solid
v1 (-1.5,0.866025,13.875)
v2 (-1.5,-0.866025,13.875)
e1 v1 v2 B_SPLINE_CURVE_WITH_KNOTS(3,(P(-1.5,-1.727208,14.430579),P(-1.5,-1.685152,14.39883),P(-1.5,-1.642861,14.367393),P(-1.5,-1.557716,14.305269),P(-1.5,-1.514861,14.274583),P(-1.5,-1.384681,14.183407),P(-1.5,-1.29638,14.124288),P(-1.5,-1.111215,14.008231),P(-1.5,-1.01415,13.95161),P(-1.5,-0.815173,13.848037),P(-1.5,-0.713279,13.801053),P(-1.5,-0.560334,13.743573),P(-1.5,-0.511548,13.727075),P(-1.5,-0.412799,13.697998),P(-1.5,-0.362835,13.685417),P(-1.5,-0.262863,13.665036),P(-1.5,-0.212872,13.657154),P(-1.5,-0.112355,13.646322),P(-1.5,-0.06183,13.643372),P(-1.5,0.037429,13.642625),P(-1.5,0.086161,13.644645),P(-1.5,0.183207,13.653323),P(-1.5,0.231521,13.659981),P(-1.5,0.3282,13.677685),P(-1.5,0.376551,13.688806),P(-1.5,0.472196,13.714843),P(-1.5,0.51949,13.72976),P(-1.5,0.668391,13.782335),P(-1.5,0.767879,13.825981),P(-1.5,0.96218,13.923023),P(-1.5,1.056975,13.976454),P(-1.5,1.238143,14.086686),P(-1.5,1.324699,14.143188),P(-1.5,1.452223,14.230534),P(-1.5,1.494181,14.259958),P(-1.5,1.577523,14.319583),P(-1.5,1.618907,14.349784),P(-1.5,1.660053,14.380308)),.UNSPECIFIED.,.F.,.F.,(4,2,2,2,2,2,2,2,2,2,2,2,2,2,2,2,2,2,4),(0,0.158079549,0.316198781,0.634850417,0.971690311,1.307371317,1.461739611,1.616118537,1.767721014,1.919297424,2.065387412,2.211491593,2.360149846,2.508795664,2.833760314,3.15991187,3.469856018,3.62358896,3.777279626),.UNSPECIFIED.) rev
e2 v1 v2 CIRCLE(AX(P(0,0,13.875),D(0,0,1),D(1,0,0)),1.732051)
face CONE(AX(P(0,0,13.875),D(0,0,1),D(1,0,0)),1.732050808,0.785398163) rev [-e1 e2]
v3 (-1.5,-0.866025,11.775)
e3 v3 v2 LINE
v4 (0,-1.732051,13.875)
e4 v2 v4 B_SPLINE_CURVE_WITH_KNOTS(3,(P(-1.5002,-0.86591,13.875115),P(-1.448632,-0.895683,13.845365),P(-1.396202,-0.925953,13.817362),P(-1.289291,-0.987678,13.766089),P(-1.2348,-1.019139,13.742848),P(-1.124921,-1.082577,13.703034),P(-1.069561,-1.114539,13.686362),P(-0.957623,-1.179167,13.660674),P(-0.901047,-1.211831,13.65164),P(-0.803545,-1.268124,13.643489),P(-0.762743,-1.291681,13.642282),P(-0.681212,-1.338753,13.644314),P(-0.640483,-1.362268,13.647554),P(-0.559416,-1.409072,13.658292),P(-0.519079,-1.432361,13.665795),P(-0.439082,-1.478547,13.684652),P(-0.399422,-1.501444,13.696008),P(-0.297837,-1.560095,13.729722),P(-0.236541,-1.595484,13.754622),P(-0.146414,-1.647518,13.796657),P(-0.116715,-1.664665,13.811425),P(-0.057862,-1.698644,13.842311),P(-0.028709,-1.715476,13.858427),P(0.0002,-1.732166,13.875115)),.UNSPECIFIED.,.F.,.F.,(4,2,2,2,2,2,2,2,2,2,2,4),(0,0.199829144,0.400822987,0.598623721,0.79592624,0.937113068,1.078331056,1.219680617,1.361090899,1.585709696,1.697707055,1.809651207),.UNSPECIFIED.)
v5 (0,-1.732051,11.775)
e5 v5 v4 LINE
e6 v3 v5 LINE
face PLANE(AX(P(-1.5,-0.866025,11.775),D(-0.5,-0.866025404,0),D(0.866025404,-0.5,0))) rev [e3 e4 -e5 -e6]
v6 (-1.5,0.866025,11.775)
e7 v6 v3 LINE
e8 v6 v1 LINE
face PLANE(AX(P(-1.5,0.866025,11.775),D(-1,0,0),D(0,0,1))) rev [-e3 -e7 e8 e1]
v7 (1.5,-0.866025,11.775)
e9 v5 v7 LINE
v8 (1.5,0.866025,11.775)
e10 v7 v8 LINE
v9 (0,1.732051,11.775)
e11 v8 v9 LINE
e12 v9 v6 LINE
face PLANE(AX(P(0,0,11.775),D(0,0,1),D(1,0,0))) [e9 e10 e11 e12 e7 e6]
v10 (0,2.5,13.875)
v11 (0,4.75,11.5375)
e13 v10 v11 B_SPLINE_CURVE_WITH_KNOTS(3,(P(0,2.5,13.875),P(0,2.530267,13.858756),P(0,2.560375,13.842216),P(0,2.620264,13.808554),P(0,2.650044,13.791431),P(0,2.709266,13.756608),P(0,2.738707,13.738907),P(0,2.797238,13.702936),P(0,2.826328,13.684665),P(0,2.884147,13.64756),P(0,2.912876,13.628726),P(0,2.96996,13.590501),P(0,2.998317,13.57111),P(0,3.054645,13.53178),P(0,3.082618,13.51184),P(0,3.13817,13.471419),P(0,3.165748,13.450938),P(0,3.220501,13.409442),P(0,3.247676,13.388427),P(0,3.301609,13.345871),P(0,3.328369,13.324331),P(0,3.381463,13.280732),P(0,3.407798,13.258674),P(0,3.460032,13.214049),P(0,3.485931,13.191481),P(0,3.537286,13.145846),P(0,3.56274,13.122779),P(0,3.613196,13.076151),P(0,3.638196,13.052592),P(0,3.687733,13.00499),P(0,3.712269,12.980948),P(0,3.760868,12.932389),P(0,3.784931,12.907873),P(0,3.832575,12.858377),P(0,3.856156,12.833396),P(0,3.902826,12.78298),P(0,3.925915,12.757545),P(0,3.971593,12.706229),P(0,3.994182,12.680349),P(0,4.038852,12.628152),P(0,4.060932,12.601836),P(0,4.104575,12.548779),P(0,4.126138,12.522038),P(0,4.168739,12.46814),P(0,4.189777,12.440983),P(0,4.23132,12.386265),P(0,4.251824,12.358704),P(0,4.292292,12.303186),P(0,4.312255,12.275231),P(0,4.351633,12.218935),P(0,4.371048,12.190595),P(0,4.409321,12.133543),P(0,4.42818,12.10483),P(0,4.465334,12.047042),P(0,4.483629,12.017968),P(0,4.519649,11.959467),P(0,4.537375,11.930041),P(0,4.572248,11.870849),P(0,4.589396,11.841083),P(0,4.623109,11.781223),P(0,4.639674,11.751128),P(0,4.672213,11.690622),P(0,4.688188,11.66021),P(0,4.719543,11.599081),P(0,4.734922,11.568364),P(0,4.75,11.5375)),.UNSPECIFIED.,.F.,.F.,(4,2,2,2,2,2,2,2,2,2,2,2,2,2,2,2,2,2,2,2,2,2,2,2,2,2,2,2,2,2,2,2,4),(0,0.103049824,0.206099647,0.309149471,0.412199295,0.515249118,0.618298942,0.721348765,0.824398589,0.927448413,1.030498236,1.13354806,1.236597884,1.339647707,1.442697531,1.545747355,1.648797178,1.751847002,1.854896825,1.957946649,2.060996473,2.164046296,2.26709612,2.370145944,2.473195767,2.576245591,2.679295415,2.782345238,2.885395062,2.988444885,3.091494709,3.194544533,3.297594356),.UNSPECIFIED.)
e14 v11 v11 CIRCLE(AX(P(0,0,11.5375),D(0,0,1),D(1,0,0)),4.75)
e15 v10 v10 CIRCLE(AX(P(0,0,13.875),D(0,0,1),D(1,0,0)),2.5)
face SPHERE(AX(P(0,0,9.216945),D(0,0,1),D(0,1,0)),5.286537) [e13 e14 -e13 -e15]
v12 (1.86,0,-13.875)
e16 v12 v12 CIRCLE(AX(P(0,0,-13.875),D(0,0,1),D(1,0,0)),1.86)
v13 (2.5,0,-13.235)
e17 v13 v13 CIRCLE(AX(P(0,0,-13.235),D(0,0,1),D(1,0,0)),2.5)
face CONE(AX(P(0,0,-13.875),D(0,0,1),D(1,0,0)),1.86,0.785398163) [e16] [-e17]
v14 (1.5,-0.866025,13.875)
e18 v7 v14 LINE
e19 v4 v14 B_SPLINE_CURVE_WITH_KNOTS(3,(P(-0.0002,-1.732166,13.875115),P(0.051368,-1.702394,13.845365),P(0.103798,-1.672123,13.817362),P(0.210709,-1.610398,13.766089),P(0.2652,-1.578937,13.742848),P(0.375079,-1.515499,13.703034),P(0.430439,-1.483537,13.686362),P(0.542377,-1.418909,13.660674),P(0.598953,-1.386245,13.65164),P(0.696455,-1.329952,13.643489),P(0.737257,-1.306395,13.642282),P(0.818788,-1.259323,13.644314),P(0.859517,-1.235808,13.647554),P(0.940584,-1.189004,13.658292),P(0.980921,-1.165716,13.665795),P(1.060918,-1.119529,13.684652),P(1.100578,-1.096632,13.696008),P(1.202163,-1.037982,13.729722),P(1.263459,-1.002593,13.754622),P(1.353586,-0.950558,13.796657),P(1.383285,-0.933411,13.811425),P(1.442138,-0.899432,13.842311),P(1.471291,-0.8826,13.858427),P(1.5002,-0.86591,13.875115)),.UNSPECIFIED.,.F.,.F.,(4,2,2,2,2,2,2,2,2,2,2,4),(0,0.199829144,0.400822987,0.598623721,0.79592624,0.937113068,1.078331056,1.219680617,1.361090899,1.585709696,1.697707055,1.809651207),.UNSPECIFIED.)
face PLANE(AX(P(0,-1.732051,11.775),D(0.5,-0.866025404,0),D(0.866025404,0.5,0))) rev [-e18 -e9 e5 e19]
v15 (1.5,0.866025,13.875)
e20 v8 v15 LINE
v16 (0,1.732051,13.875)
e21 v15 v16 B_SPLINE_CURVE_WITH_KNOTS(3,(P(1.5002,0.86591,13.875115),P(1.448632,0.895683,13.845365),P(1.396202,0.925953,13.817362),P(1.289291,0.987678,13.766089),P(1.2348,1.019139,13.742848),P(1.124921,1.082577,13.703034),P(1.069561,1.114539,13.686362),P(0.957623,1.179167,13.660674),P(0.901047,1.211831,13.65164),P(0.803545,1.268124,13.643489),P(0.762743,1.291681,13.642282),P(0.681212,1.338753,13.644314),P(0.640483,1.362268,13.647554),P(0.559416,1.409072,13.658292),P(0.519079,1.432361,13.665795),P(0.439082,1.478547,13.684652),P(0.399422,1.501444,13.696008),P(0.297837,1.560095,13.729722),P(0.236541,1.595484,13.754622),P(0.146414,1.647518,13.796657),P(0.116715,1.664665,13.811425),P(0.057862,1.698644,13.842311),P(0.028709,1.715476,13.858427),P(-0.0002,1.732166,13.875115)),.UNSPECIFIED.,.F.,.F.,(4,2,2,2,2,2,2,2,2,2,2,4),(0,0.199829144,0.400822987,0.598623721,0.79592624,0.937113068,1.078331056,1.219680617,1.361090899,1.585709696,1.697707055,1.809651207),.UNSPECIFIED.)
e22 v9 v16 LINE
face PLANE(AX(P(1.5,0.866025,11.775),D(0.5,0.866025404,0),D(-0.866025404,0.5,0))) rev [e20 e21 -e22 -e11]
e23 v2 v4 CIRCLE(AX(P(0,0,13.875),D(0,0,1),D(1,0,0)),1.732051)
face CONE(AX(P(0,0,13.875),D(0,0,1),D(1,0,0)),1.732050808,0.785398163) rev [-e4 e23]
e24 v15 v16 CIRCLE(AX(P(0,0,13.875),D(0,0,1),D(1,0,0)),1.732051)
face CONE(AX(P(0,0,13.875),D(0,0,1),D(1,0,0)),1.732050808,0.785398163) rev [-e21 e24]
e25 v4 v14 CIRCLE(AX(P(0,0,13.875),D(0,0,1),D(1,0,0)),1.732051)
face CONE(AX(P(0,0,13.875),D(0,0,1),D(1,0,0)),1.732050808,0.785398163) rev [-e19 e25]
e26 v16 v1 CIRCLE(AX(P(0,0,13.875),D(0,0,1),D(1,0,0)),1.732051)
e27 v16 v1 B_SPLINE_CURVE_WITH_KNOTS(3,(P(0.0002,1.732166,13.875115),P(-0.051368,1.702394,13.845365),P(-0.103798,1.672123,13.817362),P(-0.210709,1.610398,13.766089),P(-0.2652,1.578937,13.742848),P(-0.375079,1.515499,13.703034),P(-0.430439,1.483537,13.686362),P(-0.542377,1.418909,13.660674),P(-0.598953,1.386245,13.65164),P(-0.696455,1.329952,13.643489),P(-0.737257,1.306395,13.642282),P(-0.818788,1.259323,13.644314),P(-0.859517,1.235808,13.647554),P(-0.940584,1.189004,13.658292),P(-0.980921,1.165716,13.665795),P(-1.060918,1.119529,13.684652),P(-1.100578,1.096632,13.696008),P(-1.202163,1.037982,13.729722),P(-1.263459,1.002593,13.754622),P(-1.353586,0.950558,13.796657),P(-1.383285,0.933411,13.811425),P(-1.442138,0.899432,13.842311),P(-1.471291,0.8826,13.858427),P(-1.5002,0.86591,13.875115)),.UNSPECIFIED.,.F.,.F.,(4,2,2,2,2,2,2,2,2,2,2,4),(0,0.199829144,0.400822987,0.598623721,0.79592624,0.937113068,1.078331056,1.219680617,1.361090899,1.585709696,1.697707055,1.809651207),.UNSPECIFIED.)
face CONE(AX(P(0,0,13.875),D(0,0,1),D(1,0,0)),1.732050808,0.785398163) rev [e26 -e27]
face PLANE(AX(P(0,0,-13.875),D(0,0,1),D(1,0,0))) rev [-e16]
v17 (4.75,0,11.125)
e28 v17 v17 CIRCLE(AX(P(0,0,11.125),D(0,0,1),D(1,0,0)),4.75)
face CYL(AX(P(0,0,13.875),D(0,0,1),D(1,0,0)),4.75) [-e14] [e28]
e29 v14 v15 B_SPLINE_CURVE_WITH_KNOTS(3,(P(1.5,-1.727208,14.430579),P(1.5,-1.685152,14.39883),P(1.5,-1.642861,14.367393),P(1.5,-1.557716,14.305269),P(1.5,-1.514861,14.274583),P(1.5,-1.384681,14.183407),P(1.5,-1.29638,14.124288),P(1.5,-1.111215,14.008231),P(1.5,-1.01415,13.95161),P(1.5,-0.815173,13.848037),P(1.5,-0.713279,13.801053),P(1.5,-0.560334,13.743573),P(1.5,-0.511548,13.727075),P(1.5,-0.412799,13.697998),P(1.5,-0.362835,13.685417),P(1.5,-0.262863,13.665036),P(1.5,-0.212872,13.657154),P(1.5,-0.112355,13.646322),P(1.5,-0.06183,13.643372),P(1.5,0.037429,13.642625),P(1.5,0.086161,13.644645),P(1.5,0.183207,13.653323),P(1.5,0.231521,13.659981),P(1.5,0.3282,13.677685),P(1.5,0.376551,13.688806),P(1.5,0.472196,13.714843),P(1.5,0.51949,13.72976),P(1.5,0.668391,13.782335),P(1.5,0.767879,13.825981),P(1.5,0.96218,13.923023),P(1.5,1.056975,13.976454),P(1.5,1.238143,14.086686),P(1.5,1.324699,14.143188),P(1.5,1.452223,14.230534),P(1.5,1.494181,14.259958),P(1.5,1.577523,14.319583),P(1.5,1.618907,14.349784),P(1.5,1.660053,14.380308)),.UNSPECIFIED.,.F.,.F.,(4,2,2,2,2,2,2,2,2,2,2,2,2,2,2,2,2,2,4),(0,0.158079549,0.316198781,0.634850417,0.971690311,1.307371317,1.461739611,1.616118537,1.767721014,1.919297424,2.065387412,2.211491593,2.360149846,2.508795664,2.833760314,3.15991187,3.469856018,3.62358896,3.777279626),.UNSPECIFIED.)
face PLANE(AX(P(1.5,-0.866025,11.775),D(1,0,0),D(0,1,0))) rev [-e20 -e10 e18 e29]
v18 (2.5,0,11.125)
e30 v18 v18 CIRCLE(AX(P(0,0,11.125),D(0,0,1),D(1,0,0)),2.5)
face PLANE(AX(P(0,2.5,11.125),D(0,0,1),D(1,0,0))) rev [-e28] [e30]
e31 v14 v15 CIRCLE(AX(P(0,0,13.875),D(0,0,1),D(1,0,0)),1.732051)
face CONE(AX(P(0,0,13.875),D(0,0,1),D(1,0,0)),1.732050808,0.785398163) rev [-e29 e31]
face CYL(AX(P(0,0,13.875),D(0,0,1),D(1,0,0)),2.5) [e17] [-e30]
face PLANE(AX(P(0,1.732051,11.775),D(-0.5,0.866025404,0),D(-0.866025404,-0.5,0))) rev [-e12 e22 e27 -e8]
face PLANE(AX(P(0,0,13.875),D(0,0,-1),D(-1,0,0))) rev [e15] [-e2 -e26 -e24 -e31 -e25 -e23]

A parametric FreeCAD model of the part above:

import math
import FreeCAD as App
import Part
import Sketcher
Q = App.Units.Quantity

doc = App.newDocument("Part")
body = doc.addObject("PartDesign::Body", "Body")

# Sketch on YZ plane
sketch1 = doc.addObject("Sketcher::SketchObject", "Sketch")
body.addObject(sketch1)
sketch1.AttachmentSupport = (doc.YZ_Plane, [""])
sketch1.MapMode = "FlatFace"
sketch1.addGeometry([
    Part.LineSegment(App.Vector(0, 13.88, 0), App.Vector(0, -13.88, 0)),  # 0
    Part.LineSegment(App.Vector(0, -13.88, 0), App.Vector(1.86, -13.88, 0)),  # 1
    Part.LineSegment(App.Vector(1.86, -13.88, 0), App.Vector(2.5, -13.23, 0)),  # 2
    Part.LineSegment(App.Vector(2.5, -13.23, 0), App.Vector(2.5, 11.12, 0)),  # 3
    Part.LineSegment(App.Vector(2.5, 11.12, 0), App.Vector(4.75, 11.12, 0)),  # 4
    Part.LineSegment(App.Vector(4.75, 11.12, 0), App.Vector(4.75, 11.54, 0)),  # 5
    Part.ArcOfCircle(Part.Circle(App.Vector(0, 9.22, 0), App.Vector(0, 0, 1), 5.29), math.radians(26), math.radians(62)),  # 6
    Part.LineSegment(App.Vector(2.5, 13.88, 0), App.Vector(0, 13.88, 0)),  # 7
], False)
sketch1.addConstraint([
    Sketcher.Constraint("Coincident", 0, 2, 1, 1),
    Sketcher.Constraint("Coincident", 1, 2, 2, 1),
    Sketcher.Constraint("Coincident", 2, 2, 3, 1),
    Sketcher.Constraint("Coincident", 3, 2, 4, 1),
    Sketcher.Constraint("Coincident", 4, 2, 5, 1),
    Sketcher.Constraint("Coincident", 5, 2, 6, 1),
    Sketcher.Constraint("Coincident", 6, 2, 7, 1),
    Sketcher.Constraint("Coincident", 7, 2, 0, 1),
    Sketcher.Constraint("Vertical", 0),
    Sketcher.Constraint("Horizontal", 1),
    Sketcher.Constraint("Vertical", 3),
    Sketcher.Constraint("Horizontal", 4),
    Sketcher.Constraint("Vertical", 5),
    Sketcher.Constraint("Horizontal", 7),
    Sketcher.Constraint("Symmetric", 0, 2, 7, 2, -1, 1),
    Sketcher.Constraint("PointOnObject", 6, 3, -2),
    Sketcher.Constraint("Vertical", 3, 2, 6, 2),
    Sketcher.Constraint("Angle", 2, Q("45 deg")),
    Sketcher.Constraint("DistanceX", 7, 2, 7, 1, 2.5),
    Sketcher.Constraint("DistanceY", 1, 2, 3, 2, 25.0),
    Sketcher.Constraint("DistanceX", 1, 1, 1, 2, 1.86),
    Sketcher.Constraint("DistanceX", 4, 1, 4, 2, 2.25),
    Sketcher.Constraint("DistanceY", 0, 2, 0, 1, 27.75),
    Sketcher.Constraint("DistanceY", 5, 1, 5, 2, 0.4125),
])
revolution = doc.addObject("PartDesign::Revolution", "Revolution")
body.addObject(revolution)
revolution.Profile = sketch1
revolution.ReferenceAxis = (sketch1, ["V_Axis"])
revolution.Angle = 360

# Sketch on XY plane
sketch2 = doc.addObject("Sketcher::SketchObject", "Sketch001")
body.addObject(sketch2)
sketch2.AttachmentSupport = (doc.XY_Plane, [""])
sketch2.MapMode = "FlatFace"
sketch2.AttachmentOffset = App.Placement(App.Vector(0, 0, 13.875), App.Rotation())
sketch2.addGeometry([
    Part.LineSegment(App.Vector(0, 1.7, 0), App.Vector(-1.5, 0.9, 0)),  # 0
    Part.LineSegment(App.Vector(-1.5, 0.9, 0), App.Vector(-1.5, -0.9, 0)),  # 1
    Part.LineSegment(App.Vector(-1.5, -0.9, 0), App.Vector(0, -1.7, 0)),  # 2
    Part.LineSegment(App.Vector(0, -1.7, 0), App.Vector(1.5, -0.9, 0)),  # 3
    Part.LineSegment(App.Vector(1.5, -0.9, 0), App.Vector(1.5, 0.9, 0)),  # 4
    Part.LineSegment(App.Vector(1.5, 0.9, 0), App.Vector(0, 1.7, 0)),  # 5
], False)
sketch2.addConstraint([
    Sketcher.Constraint("Coincident", 0, 2, 1, 1),
    Sketcher.Constraint("Coincident", 1, 2, 2, 1),
    Sketcher.Constraint("Coincident", 2, 2, 3, 1),
    Sketcher.Constraint("Coincident", 3, 2, 4, 1),
    Sketcher.Constraint("Coincident", 4, 2, 5, 1),
    Sketcher.Constraint("Coincident", 5, 2, 0, 1),
    Sketcher.Constraint("Vertical", 1),
    Sketcher.Constraint("Vertical", 4),
    Sketcher.Constraint("Symmetric", 0, 2, 3, 2, -1, 1),
    Sketcher.Constraint("Symmetric", 2, 2, 5, 2, -1, 1),
    Sketcher.Constraint("PointOnObject", 2, 2, -2),
    Sketcher.Constraint("Parallel", 2, 5),
    Sketcher.Constraint("Horizontal", 1, 2, 3, 2),
    Sketcher.Constraint("Angle", 0, Q("-150 deg")),
    Sketcher.Constraint("DistanceX", 1, 2, 3, 2, 3.0),
    Sketcher.Constraint("DistanceY", 1, 2, 1, 1, 1.732051),
])
pocket1 = doc.addObject("PartDesign::Pocket", "Pocket")
body.addObject(pocket1)
pocket1.Profile = sketch2
pocket1.Length = 2.1

# Sketch on YZ plane
sketch3 = doc.addObject("Sketcher::SketchObject", "Sketch002")
body.addObject(sketch3)
sketch3.AttachmentSupport = (doc.YZ_Plane, [""])
sketch3.MapMode = "FlatFace"
sketch3.addGeometry([
    Part.LineSegment(App.Vector(0, 13.9, 0), App.Vector(-1.7, 13.9, 0)),
    Part.LineSegment(App.Vector(-1.7, 13.9, 0), App.Vector(0, 12.1, 0)),
    Part.LineSegment(App.Vector(0, 12.1, 0), App.Vector(0, 13.9, 0)),
], False)
sketch3.addConstraint([
    Sketcher.Constraint("Coincident", 0, 2, 1, 1),
    Sketcher.Constraint("Coincident", 1, 2, 2, 1),
    Sketcher.Constraint("Coincident", 2, 2, 0, 1),
    Sketcher.Constraint("Horizontal", 0),
    Sketcher.Constraint("Vertical", 2),
    Sketcher.Constraint("PointOnObject", 1, 2, -2),
    Sketcher.Constraint("Equal", 0, 2),
    Sketcher.Constraint("DistanceY", -1, 1, 0, 2, 13.875),
    Sketcher.Constraint("DistanceX", 0, 2, 0, 1, 1.732051),
])
groove = doc.addObject("PartDesign::Groove", "Groove")
body.addObject(groove)
groove.Profile = sketch3
groove.ReferenceAxis = (sketch3, ["V_Axis"])
groove.Angle = 360

doc.recompute()
